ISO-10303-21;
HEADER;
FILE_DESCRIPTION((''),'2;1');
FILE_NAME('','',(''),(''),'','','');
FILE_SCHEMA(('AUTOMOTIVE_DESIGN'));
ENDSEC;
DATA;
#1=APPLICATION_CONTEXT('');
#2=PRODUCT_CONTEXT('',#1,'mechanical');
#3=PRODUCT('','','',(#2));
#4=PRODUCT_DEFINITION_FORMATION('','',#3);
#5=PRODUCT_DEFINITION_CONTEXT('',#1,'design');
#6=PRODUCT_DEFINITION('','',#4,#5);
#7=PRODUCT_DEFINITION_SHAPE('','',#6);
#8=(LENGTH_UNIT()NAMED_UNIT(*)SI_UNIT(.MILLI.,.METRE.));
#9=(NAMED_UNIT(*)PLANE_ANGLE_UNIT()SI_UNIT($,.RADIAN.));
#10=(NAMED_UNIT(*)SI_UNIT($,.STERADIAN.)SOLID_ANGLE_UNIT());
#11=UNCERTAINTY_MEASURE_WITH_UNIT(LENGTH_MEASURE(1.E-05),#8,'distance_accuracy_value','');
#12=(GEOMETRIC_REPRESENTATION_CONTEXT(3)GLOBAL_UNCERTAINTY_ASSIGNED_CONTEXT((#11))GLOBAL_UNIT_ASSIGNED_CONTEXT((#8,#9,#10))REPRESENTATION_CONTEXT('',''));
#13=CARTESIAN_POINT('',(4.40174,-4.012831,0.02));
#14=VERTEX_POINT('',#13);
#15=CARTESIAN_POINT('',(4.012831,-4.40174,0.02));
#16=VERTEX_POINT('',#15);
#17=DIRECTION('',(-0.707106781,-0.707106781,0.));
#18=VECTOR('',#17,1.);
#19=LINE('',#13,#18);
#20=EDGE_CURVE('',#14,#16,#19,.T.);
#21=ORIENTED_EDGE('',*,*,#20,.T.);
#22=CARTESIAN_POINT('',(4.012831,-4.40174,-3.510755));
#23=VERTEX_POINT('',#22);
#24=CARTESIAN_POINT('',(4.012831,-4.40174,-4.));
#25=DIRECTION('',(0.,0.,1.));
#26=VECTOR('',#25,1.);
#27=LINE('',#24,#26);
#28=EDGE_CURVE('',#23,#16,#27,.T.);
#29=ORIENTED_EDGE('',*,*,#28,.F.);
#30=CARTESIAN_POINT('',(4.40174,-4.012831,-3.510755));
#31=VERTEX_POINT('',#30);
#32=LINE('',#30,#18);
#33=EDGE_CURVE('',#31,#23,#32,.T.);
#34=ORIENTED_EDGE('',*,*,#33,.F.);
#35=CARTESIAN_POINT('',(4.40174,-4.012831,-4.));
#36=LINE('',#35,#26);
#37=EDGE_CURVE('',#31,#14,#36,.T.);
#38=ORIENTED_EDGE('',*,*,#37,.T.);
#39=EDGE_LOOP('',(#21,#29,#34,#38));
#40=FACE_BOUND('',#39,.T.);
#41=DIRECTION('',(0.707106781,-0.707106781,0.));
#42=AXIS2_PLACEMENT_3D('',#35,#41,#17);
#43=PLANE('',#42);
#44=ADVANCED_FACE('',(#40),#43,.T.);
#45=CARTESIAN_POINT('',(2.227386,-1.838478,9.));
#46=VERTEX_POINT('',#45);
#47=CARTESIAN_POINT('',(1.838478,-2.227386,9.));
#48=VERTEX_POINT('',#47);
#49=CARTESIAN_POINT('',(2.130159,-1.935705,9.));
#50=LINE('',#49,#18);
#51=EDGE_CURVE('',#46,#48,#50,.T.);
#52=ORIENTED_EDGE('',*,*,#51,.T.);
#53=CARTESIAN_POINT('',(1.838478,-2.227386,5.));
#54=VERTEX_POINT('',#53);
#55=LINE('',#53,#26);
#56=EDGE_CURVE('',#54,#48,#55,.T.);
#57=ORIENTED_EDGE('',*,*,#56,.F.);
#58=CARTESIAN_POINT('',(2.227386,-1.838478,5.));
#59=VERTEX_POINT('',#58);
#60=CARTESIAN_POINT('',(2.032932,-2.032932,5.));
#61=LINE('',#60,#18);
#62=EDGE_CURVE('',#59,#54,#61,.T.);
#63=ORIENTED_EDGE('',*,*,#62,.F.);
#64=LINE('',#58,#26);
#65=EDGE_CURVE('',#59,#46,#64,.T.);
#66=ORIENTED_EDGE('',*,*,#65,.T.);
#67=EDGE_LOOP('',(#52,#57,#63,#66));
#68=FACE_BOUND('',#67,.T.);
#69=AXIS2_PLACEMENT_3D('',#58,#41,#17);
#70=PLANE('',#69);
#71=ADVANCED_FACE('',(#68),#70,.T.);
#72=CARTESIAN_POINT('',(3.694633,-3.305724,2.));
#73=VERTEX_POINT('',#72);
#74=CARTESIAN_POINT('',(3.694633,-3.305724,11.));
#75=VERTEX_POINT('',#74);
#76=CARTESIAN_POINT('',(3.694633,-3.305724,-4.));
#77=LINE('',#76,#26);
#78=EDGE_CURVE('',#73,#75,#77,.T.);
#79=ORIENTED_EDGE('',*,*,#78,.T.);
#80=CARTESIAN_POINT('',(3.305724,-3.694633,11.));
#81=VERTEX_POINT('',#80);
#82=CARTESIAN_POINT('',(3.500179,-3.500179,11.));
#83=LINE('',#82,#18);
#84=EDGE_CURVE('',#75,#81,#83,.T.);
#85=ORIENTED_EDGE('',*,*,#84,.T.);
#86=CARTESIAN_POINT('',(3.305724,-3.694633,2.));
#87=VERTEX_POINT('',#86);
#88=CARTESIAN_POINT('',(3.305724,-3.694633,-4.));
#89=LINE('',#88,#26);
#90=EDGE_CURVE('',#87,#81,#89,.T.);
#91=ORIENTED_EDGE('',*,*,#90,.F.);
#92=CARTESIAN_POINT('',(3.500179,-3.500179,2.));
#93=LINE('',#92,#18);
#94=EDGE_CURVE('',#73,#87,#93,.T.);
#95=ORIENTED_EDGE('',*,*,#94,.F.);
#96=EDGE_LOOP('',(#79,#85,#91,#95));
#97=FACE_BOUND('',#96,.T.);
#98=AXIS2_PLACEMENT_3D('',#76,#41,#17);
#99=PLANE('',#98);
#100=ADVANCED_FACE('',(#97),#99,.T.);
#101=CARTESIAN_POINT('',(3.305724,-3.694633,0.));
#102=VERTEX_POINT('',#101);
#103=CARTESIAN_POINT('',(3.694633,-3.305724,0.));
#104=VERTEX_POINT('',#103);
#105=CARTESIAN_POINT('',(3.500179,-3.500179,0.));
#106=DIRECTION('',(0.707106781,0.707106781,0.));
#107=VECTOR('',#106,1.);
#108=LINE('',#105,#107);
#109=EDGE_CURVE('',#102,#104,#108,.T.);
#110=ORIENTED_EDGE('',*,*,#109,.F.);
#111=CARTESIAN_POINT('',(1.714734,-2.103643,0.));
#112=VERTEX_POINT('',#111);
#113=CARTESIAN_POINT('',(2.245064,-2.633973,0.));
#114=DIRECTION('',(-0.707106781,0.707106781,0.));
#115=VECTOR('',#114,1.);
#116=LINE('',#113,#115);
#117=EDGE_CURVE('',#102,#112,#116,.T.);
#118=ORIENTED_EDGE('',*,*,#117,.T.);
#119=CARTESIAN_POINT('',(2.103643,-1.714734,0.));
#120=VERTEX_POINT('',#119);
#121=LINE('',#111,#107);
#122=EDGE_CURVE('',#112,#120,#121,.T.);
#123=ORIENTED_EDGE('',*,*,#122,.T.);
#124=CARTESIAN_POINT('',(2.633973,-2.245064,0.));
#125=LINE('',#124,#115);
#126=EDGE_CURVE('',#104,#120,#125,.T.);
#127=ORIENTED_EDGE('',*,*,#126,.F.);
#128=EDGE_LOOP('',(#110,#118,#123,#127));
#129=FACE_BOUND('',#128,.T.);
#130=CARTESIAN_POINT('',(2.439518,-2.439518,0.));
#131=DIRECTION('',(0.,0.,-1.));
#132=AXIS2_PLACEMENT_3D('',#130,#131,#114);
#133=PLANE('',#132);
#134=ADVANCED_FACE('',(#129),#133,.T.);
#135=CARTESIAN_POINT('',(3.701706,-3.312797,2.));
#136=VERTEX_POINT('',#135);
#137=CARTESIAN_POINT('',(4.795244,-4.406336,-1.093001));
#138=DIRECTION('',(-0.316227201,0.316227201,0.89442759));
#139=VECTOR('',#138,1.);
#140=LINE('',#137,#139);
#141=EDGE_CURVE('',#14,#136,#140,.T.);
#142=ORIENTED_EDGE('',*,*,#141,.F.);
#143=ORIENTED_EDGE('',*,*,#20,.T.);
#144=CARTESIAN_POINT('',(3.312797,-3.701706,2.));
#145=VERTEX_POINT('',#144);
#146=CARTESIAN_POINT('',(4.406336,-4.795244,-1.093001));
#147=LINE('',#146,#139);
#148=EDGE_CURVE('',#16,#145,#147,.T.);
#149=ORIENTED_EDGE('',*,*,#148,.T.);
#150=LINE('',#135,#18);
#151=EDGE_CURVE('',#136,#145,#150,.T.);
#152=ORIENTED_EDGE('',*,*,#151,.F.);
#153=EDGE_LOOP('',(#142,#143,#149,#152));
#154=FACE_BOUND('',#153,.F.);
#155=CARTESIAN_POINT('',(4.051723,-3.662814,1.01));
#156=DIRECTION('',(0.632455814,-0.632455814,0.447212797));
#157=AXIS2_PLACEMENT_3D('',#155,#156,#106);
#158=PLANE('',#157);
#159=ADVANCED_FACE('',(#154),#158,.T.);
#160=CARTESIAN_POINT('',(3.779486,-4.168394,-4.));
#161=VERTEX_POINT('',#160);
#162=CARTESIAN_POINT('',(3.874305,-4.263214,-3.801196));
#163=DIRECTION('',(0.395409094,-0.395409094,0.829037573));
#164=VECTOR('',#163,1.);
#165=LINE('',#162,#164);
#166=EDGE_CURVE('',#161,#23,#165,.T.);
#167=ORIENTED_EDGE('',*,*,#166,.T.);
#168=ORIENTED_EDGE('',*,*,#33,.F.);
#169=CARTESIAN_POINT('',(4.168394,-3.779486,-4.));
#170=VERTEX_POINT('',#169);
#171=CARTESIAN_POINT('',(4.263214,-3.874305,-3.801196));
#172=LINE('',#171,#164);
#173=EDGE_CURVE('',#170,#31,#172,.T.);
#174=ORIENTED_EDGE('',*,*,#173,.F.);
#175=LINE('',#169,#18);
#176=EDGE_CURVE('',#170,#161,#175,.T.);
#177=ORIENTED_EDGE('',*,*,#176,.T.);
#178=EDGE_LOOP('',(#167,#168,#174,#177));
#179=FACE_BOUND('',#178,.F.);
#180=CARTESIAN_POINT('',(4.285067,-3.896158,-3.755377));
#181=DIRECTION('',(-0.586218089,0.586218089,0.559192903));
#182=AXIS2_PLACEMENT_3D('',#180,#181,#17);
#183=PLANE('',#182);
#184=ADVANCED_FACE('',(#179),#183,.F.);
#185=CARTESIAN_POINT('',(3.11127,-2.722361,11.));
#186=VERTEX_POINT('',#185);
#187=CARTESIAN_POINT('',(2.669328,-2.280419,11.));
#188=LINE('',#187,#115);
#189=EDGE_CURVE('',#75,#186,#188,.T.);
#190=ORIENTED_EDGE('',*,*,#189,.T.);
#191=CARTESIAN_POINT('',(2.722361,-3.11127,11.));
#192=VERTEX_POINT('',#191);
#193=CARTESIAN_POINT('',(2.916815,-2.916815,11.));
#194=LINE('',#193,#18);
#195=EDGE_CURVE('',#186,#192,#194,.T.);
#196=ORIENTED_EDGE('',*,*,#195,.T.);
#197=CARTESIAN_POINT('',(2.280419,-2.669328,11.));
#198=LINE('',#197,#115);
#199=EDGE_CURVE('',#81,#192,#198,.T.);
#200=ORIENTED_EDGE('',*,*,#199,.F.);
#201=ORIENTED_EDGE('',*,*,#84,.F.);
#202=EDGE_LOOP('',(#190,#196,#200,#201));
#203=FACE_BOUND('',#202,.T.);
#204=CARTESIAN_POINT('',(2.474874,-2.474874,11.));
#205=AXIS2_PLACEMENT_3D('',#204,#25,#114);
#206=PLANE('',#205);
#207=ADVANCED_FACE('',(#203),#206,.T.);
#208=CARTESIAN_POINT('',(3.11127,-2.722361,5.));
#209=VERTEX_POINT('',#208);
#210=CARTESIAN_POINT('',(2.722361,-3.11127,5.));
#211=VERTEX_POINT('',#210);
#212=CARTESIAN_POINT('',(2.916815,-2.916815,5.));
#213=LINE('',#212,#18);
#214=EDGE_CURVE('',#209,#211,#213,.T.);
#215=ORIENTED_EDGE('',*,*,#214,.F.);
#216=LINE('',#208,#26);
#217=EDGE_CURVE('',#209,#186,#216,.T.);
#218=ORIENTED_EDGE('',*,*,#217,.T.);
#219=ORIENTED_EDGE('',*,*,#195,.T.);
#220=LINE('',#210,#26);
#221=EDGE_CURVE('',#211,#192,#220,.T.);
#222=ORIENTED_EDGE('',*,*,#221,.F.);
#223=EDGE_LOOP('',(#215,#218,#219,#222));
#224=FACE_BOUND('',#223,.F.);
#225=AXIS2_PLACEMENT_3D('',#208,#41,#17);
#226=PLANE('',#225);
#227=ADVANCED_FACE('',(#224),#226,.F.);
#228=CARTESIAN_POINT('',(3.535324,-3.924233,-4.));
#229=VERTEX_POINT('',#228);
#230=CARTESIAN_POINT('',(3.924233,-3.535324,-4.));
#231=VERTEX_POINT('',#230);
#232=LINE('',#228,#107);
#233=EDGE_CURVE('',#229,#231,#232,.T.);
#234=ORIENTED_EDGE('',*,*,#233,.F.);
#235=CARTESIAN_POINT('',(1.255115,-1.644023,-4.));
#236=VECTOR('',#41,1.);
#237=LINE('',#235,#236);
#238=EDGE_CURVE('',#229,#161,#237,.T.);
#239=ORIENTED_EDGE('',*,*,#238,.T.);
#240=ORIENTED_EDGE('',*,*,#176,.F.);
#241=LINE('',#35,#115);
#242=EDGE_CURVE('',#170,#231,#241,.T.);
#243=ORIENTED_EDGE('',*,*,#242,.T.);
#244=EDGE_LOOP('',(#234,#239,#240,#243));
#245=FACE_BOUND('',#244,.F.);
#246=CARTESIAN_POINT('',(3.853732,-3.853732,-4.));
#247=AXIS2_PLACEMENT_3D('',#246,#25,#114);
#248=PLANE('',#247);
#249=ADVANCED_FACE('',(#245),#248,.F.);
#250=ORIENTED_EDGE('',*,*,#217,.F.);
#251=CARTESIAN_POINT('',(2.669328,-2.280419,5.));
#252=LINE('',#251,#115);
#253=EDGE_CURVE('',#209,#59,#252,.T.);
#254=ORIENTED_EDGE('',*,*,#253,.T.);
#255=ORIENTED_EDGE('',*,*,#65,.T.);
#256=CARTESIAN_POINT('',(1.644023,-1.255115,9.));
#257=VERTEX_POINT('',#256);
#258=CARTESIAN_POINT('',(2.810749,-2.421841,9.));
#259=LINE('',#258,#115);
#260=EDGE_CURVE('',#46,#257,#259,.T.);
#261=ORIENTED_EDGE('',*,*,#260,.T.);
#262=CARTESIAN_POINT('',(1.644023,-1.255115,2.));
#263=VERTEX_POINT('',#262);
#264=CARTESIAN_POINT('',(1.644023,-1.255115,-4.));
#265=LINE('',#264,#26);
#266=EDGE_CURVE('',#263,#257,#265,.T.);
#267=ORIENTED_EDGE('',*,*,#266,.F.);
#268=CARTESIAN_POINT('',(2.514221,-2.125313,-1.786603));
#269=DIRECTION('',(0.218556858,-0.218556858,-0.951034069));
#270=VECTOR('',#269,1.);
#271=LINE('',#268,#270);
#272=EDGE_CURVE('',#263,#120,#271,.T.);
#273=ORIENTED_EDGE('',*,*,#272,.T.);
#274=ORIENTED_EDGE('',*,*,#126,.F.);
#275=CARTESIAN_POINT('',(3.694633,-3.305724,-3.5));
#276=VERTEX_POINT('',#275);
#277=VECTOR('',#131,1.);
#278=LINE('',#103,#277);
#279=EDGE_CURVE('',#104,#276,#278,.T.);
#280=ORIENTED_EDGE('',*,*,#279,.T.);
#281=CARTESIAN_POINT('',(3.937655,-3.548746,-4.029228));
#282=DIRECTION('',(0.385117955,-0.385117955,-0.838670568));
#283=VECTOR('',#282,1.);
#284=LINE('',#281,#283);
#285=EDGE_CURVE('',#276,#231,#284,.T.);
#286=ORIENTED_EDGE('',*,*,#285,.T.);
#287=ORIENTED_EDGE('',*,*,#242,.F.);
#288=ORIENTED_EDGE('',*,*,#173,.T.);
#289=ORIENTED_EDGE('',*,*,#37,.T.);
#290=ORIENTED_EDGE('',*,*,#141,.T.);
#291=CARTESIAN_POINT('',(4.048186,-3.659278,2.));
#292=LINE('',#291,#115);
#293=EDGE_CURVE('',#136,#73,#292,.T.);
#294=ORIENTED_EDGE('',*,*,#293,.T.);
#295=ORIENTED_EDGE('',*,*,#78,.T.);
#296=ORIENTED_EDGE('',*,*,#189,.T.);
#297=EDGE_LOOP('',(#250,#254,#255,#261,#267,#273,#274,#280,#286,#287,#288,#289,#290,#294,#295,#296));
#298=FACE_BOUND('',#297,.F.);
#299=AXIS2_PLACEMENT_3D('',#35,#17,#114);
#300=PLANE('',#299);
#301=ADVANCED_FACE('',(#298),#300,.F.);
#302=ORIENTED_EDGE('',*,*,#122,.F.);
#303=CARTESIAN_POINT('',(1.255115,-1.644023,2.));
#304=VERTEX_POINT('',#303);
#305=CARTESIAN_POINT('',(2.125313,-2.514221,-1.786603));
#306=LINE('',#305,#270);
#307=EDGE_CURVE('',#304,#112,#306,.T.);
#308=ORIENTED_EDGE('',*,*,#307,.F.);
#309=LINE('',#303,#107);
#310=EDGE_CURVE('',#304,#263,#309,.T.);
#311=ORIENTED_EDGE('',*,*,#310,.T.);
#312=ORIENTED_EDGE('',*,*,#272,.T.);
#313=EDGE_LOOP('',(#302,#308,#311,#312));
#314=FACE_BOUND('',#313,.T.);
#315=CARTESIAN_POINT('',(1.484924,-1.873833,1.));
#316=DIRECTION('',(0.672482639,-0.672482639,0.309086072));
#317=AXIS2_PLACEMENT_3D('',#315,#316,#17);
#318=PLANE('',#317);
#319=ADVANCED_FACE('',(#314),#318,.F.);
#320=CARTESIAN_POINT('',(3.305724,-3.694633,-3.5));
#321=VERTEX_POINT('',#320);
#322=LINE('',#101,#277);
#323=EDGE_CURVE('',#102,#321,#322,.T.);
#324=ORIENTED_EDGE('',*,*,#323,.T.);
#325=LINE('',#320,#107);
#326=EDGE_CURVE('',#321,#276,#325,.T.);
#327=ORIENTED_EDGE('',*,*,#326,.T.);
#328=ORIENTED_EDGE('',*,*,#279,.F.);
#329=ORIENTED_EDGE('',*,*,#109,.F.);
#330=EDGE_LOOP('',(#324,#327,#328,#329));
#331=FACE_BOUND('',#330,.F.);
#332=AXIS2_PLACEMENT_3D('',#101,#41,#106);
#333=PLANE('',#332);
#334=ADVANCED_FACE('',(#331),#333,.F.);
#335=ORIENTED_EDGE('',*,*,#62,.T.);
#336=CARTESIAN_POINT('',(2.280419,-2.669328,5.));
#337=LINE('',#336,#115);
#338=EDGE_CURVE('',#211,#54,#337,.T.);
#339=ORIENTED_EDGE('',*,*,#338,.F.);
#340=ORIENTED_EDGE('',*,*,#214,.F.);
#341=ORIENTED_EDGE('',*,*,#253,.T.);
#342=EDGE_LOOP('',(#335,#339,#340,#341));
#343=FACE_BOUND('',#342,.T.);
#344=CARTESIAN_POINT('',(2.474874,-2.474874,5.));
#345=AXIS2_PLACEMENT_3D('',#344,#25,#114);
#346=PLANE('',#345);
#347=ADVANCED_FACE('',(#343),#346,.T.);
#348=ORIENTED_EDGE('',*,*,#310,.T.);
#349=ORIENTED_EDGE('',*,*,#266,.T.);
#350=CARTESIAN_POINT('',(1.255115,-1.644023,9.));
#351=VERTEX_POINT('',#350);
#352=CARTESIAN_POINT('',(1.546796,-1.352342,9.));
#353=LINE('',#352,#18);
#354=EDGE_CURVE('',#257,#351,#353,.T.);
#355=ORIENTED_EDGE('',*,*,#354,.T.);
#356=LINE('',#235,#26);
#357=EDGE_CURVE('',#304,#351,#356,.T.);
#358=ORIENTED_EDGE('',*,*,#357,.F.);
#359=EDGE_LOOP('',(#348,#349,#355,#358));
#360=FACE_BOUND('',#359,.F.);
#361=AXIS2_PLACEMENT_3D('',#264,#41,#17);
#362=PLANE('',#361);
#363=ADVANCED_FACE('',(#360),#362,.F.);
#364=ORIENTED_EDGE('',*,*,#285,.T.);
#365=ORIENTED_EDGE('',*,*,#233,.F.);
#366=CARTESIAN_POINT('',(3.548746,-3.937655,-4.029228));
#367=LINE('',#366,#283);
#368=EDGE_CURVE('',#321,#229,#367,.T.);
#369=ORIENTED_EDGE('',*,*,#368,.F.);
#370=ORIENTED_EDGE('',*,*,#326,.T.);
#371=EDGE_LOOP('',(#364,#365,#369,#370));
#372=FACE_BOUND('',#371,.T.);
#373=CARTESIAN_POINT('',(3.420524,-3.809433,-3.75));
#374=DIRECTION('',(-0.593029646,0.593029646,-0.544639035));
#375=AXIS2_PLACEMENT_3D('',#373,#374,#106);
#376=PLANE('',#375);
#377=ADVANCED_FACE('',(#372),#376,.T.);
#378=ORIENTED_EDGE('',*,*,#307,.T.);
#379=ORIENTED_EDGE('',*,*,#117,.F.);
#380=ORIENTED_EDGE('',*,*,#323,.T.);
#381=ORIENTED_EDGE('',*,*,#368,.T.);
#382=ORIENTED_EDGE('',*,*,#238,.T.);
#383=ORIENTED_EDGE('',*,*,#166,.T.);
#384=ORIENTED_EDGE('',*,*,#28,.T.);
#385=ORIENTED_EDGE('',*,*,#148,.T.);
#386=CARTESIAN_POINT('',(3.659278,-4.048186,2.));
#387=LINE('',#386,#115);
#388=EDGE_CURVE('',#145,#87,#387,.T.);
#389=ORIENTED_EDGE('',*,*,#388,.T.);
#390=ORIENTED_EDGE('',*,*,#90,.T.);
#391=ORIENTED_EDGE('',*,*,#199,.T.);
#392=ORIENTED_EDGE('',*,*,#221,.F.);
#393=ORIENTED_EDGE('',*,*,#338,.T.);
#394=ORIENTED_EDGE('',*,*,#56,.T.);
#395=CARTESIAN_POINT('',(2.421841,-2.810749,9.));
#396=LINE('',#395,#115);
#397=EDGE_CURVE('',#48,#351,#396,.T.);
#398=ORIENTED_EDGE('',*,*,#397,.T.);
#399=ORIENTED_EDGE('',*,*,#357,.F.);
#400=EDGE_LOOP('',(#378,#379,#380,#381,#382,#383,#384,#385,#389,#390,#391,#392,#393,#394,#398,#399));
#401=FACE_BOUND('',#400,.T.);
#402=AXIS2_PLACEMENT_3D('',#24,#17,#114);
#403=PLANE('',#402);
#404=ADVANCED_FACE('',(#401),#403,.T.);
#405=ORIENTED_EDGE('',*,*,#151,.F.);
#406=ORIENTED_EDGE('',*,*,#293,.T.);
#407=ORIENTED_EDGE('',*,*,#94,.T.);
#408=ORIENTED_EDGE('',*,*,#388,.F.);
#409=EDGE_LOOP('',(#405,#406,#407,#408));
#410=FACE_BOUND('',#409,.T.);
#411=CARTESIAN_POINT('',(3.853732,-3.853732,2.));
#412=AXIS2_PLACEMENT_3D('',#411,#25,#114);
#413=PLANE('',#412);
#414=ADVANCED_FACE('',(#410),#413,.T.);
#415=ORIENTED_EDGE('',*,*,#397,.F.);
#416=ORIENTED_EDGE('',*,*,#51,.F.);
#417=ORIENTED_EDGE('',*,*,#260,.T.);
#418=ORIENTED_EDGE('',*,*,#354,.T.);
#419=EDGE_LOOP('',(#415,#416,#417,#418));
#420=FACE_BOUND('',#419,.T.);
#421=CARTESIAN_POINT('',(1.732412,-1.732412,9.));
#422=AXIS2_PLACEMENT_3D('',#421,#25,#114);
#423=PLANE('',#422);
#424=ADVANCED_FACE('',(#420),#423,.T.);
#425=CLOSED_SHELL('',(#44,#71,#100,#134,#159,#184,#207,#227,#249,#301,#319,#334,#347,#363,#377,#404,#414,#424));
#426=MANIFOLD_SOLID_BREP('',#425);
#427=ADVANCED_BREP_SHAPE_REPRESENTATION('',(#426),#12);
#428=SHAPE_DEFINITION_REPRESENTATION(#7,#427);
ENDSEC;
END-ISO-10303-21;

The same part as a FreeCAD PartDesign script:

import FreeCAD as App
import Part
import Sketcher
from FreeCAD import Vector


def edges_at(feature, points):
    """Names of the edges that pass closest to the given points."""
    edges = feature.Shape.Edges
    near = lambda p: min(range(len(edges)), key=lambda i: edges[i].distToShape(Part.Vertex(*p))[0])
    return sorted({f"Edge{near(p) + 1}" for p in points})


def add_polygon(sketch, points):
    """Adds a closed chain of lines whose ends are joined by coincident constraints."""
    first, n = sketch.GeometryCount, len(points)
    for a, b in zip(points, points[1:] + points[:1]):
        sketch.addGeometry(Part.LineSegment(App.Vector(*a, 0), App.Vector(*b, 0)), False)
    for i in range(n):
        sketch.addConstraint(Sketcher.Constraint("Coincident", first + i, 2, first + (i + 1) % n, 1))

doc = App.newDocument("Part")
body = doc.addObject("PartDesign::Body", "Body")

sketch1 = body.newObject("Sketcher::SketchObject", "Sketch")
sketch1.AttachmentSupport = (doc.getObject("XY_Plane"), [""])
sketch1.MapMode = "FlatFace"
add_polygon(sketch1, [(-4.95, 0.275), (-4.95, -0.275), (-2.05, -0.275), (-2.05, 0.275)])
sketch1.addConstraint([
    Sketcher.Constraint("Vertical", 0),
    Sketcher.Constraint("Horizontal", 1),
    Sketcher.Constraint("Vertical", 2),
    Sketcher.Constraint("Horizontal", 3),
    Sketcher.Constraint("DistanceX", 1, 1, 1, 2, 2.9),
    Sketcher.Constraint("DistanceY", 0, 2, 0, 1, 0.55),
    Sketcher.Constraint("DistanceX", 0, 2, -1, 1, 4.95),
    Sketcher.Constraint("DistanceY", 0, 2, -1, 1, 0.275),
])
pad1 = body.newObject("PartDesign::Pad", "Pad")
pad1.Profile = sketch1
pad1.Length = 15

sketch2 = body.newObject("Sketcher::SketchObject", "Sketch001")
sketch2.AttachmentSupport = (doc.getObject("XY_Plane"), [""])
sketch2.MapMode = "FlatFace"
sketch2.AttachmentOffset = App.Placement(Vector(0, 0, 9), App.Rotation())
add_polygon(sketch2, [(-4.125, 0.275), (-4.125, -0.275), (-2.875, -0.275), (-2.875, 0.275)])
sketch2.addConstraint([
    Sketcher.Constraint("Vertical", 0),
    Sketcher.Constraint("Horizontal", 1),
    Sketcher.Constraint("Vertical", 2),
    Sketcher.Constraint("Horizontal", 3),
    Sketcher.Constraint("DistanceX", 1, 1, 1, 2, 1.25),
    Sketcher.Constraint("DistanceY", 0, 2, 0, 1, 0.55),
    Sketcher.Constraint("DistanceX", 0, 2, -1, 1, 4.125),
    Sketcher.Constraint("DistanceY", 0, 2, -1, 1, 0.275),
])
pocket1 = body.newObject("PartDesign::Pocket", "Pocket")
pocket1.Profile = sketch2
pocket1.Length = 6
pocket1.Reversed = True

sketch3 = body.newObject("Sketcher::SketchObject", "Sketch002")
sketch3.AttachmentSupport = (doc.getObject("XY_Plane"), [""])
sketch3.MapMode = "FlatFace"
sketch3.AttachmentOffset = App.Placement(Vector(0, 0, 13), App.Rotation())
add_polygon(sketch3, [(-3, 0.3), (-3, -0.3), (-1.9, -0.3), (-1.9, 0.3)])
sketch3.addConstraint([
    Sketcher.Constraint("Vertical", 0),
    Sketcher.Constraint("Horizontal", 1),
    Sketcher.Constraint("Vertical", 2),
    Sketcher.Constraint("Horizontal", 3),
    Sketcher.Constraint("DistanceX", 1, 1, 1, 2, 1.1),
    Sketcher.Constraint("DistanceY", 0, 2, 0, 1, 0.6),
    Sketcher.Constraint("DistanceX", 0, 2, -1, 1, 3.0),
    Sketcher.Constraint("DistanceY", 0, 2, -1, 1, 0.3),
])
pocket2 = body.newObject("PartDesign::Pocket", "Pocket001")
pocket2.Profile = sketch3
pocket2.Length = 2
pocket2.Reversed = True

sketch4 = body.newObject("Sketcher::SketchObject", "Sketch003")
sketch4.AttachmentSupport = (doc.getObject("XY_Plane"), [""])
sketch4.MapMode = "FlatFace"
add_polygon(sketch4, [(-5.95, 0.275), (-5.95, -0.275), (-4.95, -0.275), (-4.95, 0.275)])
sketch4.addConstraint([
    Sketcher.Constraint("Vertical", 0),
    Sketcher.Constraint("Horizontal", 1),
    Sketcher.Constraint("Vertical", 2),
    Sketcher.Constraint("Horizontal", 3),
    Sketcher.Constraint("DistanceX", 1, 1, 1, 2, 1.0),
    Sketcher.Constraint("DistanceY", 0, 2, 0, 1, 0.55),
    Sketcher.Constraint("DistanceX", 0, 2, -1, 1, 5.95),
    Sketcher.Constraint("DistanceY", 0, 2, -1, 1, 0.275),
])
pad2 = body.newObject("PartDesign::Pad", "Pad001")
pad2.Profile = sketch4
pad2.Length = 6

sketch5 = body.newObject("Sketcher::SketchObject", "Sketch004")
sketch5.AttachmentSupport = (doc.getObject("XY_Plane"), [""])
sketch5.MapMode = "FlatFace"
sketch5.AttachmentOffset = App.Placement(Vector(0, 0, 4), App.Rotation())
add_polygon(sketch5, [(-4.95, -0.275), (-4.95, 0.275), (-1.95, 0.275), (-1.95, -0.275)])
sketch5.addConstraint([
    Sketcher.Constraint("Vertical", 0),
    Sketcher.Constraint("Horizontal", 1),
    Sketcher.Constraint("Vertical", 2),
    Sketcher.Constraint("Horizontal", 3),
    Sketcher.Constraint("DistanceX", 1, 1, 1, 2, 3.0),
    Sketcher.Constraint("DistanceY", 0, 1, 0, 2, 0.55),
    Sketcher.Constraint("DistanceX", 0, 2, -1, 1, 4.95),
    Sketcher.Constraint("DistanceY", -1, 1, 0, 2, 0.275),
])
pocket3 = body.newObject("PartDesign::Pocket", "Pocket002")
pocket3.Profile = sketch5
pocket3.Length = 4
doc.recompute()

chamfer = body.newObject("PartDesign::Chamfer", "Chamfer")
chamfer.Base = (pocket3, edges_at(pocket3, [(-2.05, 0, 4)]))
chamfer.ChamferType = "Two distances"
chamfer.Size = 2
chamfer.Size2 = 0.65
doc.recompute()

chamfer2 = body.newObject("PartDesign::Chamfer", "Chamfer001")
chamfer2.Base = (chamfer, edges_at(chamfer, [(-4.95, 0, 0)]))
chamfer2.ChamferType = "Distance and Angle"
chamfer2.Size = 0.5
chamfer2.Angle = 33
doc.recompute()

chamfer3 = body.newObject("PartDesign::Chamfer", "Chamfer002")
chamfer3.Base = (chamfer2, edges_at(chamfer2, [(-5.95, 0, 0)]))
chamfer3.ChamferType = "Distance and Angle"
chamfer3.Size = 0.33
chamfer3.Angle = 56
doc.recompute()

chamfer4 = body.newObject("PartDesign::Chamfer", "Chamfer003")
chamfer4.Base = (chamfer3, edges_at(chamfer3, [(-5.95, 0, 6)]))
chamfer4.ChamferType = "Distance and Angle"
chamfer4.Size = 1.98
chamfer4.Angle = 26.565
body2 = doc.addObject("PartDesign::Body", "Body001")
doc.recompute()

body.Placement = App.Placement(Vector(0, 0, -4), App.Rotation(Vector(0, 0, 1), 135))
boolean = body2.newObject("PartDesign::Boolean", "Boolean")
boolean.Type = "Fuse"
boolean.addObjects([body])

doc.recompute()
